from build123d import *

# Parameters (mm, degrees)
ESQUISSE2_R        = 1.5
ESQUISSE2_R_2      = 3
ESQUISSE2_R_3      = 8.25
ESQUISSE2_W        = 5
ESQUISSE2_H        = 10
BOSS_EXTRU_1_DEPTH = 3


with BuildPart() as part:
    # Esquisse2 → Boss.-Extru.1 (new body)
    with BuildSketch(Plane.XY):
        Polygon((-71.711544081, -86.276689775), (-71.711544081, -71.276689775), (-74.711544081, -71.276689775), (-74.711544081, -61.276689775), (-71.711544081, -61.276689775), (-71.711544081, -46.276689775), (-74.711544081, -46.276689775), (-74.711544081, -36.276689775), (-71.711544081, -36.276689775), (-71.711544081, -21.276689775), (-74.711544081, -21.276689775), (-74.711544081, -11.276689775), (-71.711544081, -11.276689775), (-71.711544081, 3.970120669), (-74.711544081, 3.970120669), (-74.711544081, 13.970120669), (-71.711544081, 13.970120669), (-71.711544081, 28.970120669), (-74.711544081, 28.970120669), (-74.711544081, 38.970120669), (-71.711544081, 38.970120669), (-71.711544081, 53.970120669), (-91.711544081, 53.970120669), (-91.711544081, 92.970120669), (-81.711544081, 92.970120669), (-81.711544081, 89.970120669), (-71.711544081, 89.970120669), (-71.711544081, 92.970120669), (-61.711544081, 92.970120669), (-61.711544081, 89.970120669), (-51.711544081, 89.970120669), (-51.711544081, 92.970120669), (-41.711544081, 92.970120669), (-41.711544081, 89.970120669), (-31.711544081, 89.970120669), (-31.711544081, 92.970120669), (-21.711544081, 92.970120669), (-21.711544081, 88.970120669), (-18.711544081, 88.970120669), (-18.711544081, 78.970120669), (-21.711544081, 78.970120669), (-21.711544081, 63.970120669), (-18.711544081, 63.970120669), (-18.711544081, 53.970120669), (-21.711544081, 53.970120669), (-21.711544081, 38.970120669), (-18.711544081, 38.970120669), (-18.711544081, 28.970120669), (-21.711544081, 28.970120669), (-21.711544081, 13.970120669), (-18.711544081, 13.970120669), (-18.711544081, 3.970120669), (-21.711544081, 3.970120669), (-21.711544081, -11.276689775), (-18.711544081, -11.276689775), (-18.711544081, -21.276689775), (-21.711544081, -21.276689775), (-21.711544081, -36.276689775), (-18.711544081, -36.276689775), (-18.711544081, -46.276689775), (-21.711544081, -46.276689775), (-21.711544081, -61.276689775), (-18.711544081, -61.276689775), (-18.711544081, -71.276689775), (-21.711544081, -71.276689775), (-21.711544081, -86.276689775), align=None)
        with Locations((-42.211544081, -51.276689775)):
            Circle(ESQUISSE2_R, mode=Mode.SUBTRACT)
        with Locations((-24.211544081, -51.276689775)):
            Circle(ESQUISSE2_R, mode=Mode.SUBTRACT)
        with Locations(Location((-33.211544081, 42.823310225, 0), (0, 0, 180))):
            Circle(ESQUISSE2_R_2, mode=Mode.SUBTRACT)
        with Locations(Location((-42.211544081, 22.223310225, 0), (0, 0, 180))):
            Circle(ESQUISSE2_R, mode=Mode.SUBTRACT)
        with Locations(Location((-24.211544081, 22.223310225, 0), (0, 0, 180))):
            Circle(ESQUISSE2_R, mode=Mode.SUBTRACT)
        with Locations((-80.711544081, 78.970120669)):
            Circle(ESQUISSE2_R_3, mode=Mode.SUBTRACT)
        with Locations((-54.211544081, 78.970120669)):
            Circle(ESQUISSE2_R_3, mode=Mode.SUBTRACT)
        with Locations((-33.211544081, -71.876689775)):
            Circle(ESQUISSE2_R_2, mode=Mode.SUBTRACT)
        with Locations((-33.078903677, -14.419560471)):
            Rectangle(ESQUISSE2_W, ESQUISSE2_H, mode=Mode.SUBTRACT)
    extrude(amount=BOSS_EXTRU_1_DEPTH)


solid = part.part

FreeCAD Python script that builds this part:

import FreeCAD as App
import Part
import Sketcher
from FreeCAD import Vector

doc = App.newDocument("Part")
body = doc.addObject("PartDesign::Body", "Body")

sketch1 = body.newObject("Sketcher::SketchObject", "Sketch")
sketch1.AttachmentSupport = (doc.getObject("XY_Plane"), [""])
sketch1.MapMode = "FlatFace"
sketch1.addGeometry([
    Part.LineSegment(Vector(-71.7, -71.3, 0), Vector(-71.7, -86.3, 0)),
    Part.LineSegment(Vector(-71.7, -86.3, 0), Vector(-21.7, -86.3, 0)),
    Part.LineSegment(Vector(-21.7, -86.3, 0), Vector(-21.7, -71.3, 0)),
    Part.LineSegment(Vector(-21.7, -71.3, 0), Vector(-18.7, -71.3, 0)),
    Part.LineSegment(Vector(-18.7, -71.3, 0), Vector(-18.7, -61.3, 0)),
    Part.LineSegment(Vector(-18.7, -61.3, 0), Vector(-21.7, -61.3, 0)),
    Part.LineSegment(Vector(-21.7, -61.3, 0), Vector(-21.7, -46.3, 0)),
    Part.LineSegment(Vector(-21.7, -46.3, 0), Vector(-18.7, -46.3, 0)),
    Part.LineSegment(Vector(-18.7, -46.3, 0), Vector(-18.7, -36.3, 0)),
    Part.LineSegment(Vector(-18.7, -36.3, 0), Vector(-21.7, -36.3, 0)),
    Part.LineSegment(Vector(-21.7, -36.3, 0), Vector(-21.7, -21.3, 0)),
    Part.LineSegment(Vector(-21.7, -21.3, 0), Vector(-18.7, -21.3, 0)),
    Part.LineSegment(Vector(-18.7, -21.3, 0), Vector(-18.7, -11.3, 0)),
    Part.LineSegment(Vector(-18.7, -11.3, 0), Vector(-21.7, -11.3, 0)),
    Part.LineSegment(Vector(-21.7, -11.3, 0), Vector(-21.7, 4, 0)),
    Part.LineSegment(Vector(-21.7, 4, 0), Vector(-18.7, 4, 0)),
    Part.LineSegment(Vector(-18.7, 4, 0), Vector(-18.7, 14, 0)),
    Part.LineSegment(Vector(-18.7, 14, 0), Vector(-21.7, 14, 0)),
    Part.LineSegment(Vector(-21.7, 14, 0), Vector(-21.7, 29, 0)),
    Part.LineSegment(Vector(-21.7, 29, 0), Vector(-18.7, 29, 0)),
    Part.LineSegment(Vector(-18.7, 29, 0), Vector(-18.7, 39, 0)),
    Part.LineSegment(Vector(-18.7, 39, 0), Vector(-21.7, 39, 0)),
    Part.LineSegment(Vector(-21.7, 39, 0), Vector(-21.7, 54, 0)),
    Part.LineSegment(Vector(-21.7, 54, 0), Vector(-18.7, 54, 0)),
    Part.LineSegment(Vector(-18.7, 54, 0), Vector(-18.7, 64, 0)),
    Part.LineSegment(Vector(-18.7, 64, 0), Vector(-21.7, 64, 0)),
    Part.LineSegment(Vector(-21.7, 64, 0), Vector(-21.7, 79, 0)),
    Part.LineSegment(Vector(-21.7, 79, 0), Vector(-18.7, 79, 0)),
    Part.LineSegment(Vector(-18.7, 79, 0), Vector(-18.7, 89, 0)),
    Part.LineSegment(Vector(-18.7, 89, 0), Vector(-21.7, 89, 0)),
    Part.LineSegment(Vector(-21.7, 89, 0), Vector(-21.7, 93, 0)),
    Part.LineSegment(Vector(-21.7, 93, 0), Vector(-31.7, 93, 0)),
    Part.LineSegment(Vector(-31.7, 93, 0), Vector(-31.7, 90, 0)),
    Part.LineSegment(Vector(-31.7, 90, 0), Vector(-41.7, 90, 0)),
    Part.LineSegment(Vector(-41.7, 90, 0), Vector(-41.7, 93, 0)),
    Part.LineSegment(Vector(-41.7, 93, 0), Vector(-51.7, 93, 0)),
    Part.LineSegment(Vector(-51.7, 93, 0), Vector(-51.7, 90, 0)),
    Part.LineSegment(Vector(-51.7, 90, 0), Vector(-61.7, 90, 0)),
    Part.LineSegment(Vector(-61.7, 90, 0), Vector(-61.7, 93, 0)),
    Part.LineSegment(Vector(-61.7, 93, 0), Vector(-71.7, 93, 0)),
    Part.LineSegment(Vector(-71.7, 93, 0), Vector(-71.7, 90, 0)),
    Part.LineSegment(Vector(-71.7, 90, 0), Vector(-81.7, 90, 0)),
    Part.LineSegment(Vector(-81.7, 90, 0), Vector(-81.7, 93, 0)),
    Part.LineSegment(Vector(-81.7, 93, 0), Vector(-91.7, 93, 0)),
    Part.LineSegment(Vector(-91.7, 93, 0), Vector(-91.7, 54, 0)),
    Part.LineSegment(Vector(-91.7, 54, 0), Vector(-71.7, 54, 0)),
    Part.LineSegment(Vector(-71.7, 54, 0), Vector(-71.7, 39, 0)),
    Part.LineSegment(Vector(-71.7, 39, 0), Vector(-74.7, 39, 0)),
    Part.LineSegment(Vector(-74.7, 39, 0), Vector(-74.7, 29, 0)),
    Part.LineSegment(Vector(-74.7, 29, 0), Vector(-71.7, 29, 0)),
    Part.LineSegment(Vector(-71.7, 29, 0), Vector(-71.7, 14, 0)),
    Part.LineSegment(Vector(-71.7, 14, 0), Vector(-74.7, 14, 0)),
    Part.LineSegment(Vector(-74.7, 14, 0), Vector(-74.7, 4, 0)),
    Part.LineSegment(Vector(-74.7, 4, 0), Vector(-71.7, 4, 0)),
    Part.LineSegment(Vector(-71.7, 4, 0), Vector(-71.7, -11.3, 0)),
    Part.LineSegment(Vector(-71.7, -11.3, 0), Vector(-74.7, -11.3, 0)),
    Part.LineSegment(Vector(-74.7, -11.3, 0), Vector(-74.7, -21.3, 0)),
    Part.LineSegment(Vector(-74.7, -21.3, 0), Vector(-71.7, -21.3, 0)),
    Part.LineSegment(Vector(-71.7, -21.3, 0), Vector(-71.7, -36.3, 0)),
    Part.LineSegment(Vector(-71.7, -36.3, 0), Vector(-74.7, -36.3, 0)),
    Part.LineSegment(Vector(-74.7, -36.3, 0), Vector(-74.7, -46.3, 0)),
    Part.LineSegment(Vector(-74.7, -46.3, 0), Vector(-71.7, -46.3, 0)),
    Part.LineSegment(Vector(-71.7, -46.3, 0), Vector(-71.7, -61.3, 0)),
    Part.LineSegment(Vector(-71.7, -61.3, 0), Vector(-74.7, -61.3, 0)),
    Part.LineSegment(Vector(-74.7, -61.3, 0), Vector(-74.7, -71.3, 0)),
    Part.LineSegment(Vector(-74.7, -71.3, 0), Vector(-71.7, -71.3, 0)),
    Part.Circle(Vector(-33.2, -71.9, 0), Vector(0, 0, 1), 3),
    Part.Circle(Vector(-24.2, -51.3, 0), Vector(0, 0, 1), 1.5),
    Part.Circle(Vector(-42.2, -51.3, 0), Vector(0, 0, 1), 1.5),
    Part.LineSegment(Vector(-35.6, -19.4, 0), Vector(-35.6, -9.4, 0)),
    Part.LineSegment(Vector(-35.6, -9.4, 0), Vector(-30.6, -9.4, 0)),
    Part.LineSegment(Vector(-30.6, -9.4, 0), Vector(-30.6, -19.4, 0)),
    Part.LineSegment(Vector(-30.6, -19.4, 0), Vector(-35.6, -19.4, 0)),
    Part.Circle(Vector(-24.2, 22.2, 0), Vector(0, 0, 1), 1.5),
    Part.Circle(Vector(-33.2, 42.8, 0), Vector(0, 0, 1), 3),
    Part.Circle(Vector(-42.2, 22.2, 0), Vector(0, 0, 1), 1.5),
    Part.Circle(Vector(-54.2, 79, 0), Vector(0, 0, 1), 8.2),
    Part.Circle(Vector(-80.7, 79, 0), Vector(0, 0, 1), 8.2),
], False)
sketch1.addConstraint([
    Sketcher.Constraint("Coincident", 0, 2, 1, 1),
    Sketcher.Constraint("Coincident", 1, 2, 2, 1),
    Sketcher.Constraint("Coincident", 2, 2, 3, 1),
    Sketcher.Constraint("Coincident", 3, 2, 4, 1),
    Sketcher.Constraint("Coincident", 4, 2, 5, 1),
    Sketcher.Constraint("Coincident", 5, 2, 6, 1),
    Sketcher.Constraint("Coincident", 6, 2, 7, 1),
    Sketcher.Constraint("Coincident", 7, 2, 8, 1),
    Sketcher.Constraint("Coincident", 8, 2, 9, 1),
    Sketcher.Constraint("Coincident", 9, 2, 10, 1),
    Sketcher.Constraint("Coincident", 10, 2, 11, 1),
    Sketcher.Constraint("Coincident", 11, 2, 12, 1),
    Sketcher.Constraint("Coincident", 12, 2, 13, 1),
    Sketcher.Constraint("Coincident", 13, 2, 14, 1),
    Sketcher.Constraint("Coincident", 14, 2, 15, 1),
    Sketcher.Constraint("Coincident", 15, 2, 16, 1),
    Sketcher.Constraint("Coincident", 16, 2, 17, 1),
    Sketcher.Constraint("Coincident", 17, 2, 18, 1),
    Sketcher.Constraint("Coincident", 18, 2, 19, 1),
    Sketcher.Constraint("Coincident", 19, 2, 20, 1),
    Sketcher.Constraint("Coincident", 20, 2, 21, 1),
    Sketcher.Constraint("Coincident", 21, 2, 22, 1),
    Sketcher.Constraint("Coincident", 22, 2, 23, 1),
    Sketcher.Constraint("Coincident", 23, 2, 24, 1),
    Sketcher.Constraint("Coincident", 24, 2, 25, 1),
    Sketcher.Constraint("Coincident", 25, 2, 26, 1),
    Sketcher.Constraint("Coincident", 26, 2, 27, 1),
    Sketcher.Constraint("Coincident", 27, 2, 28, 1),
    Sketcher.Constraint("Coincident", 28, 2, 29, 1),
    Sketcher.Constraint("Coincident", 29, 2, 30, 1),
    Sketcher.Constraint("Coincident", 30, 2, 31, 1),
    Sketcher.Constraint("Coincident", 31, 2, 32, 1),
    Sketcher.Constraint("Coincident", 32, 2, 33, 1),
    Sketcher.Constraint("Coincident", 33, 2, 34, 1),
    Sketcher.Constraint("Coincident", 34, 2, 35, 1),
    Sketcher.Constraint("Coincident", 35, 2, 36, 1),
    Sketcher.Constraint("Coincident", 36, 2, 37, 1),
    Sketcher.Constraint("Coincident", 37, 2, 38, 1),
    Sketcher.Constraint("Coincident", 38, 2, 39, 1),
    Sketcher.Constraint("Coincident", 39, 2, 40, 1),
    Sketcher.Constraint("Coincident", 40, 2, 41, 1),
    Sketcher.Constraint("Coincident", 41, 2, 42, 1),
    Sketcher.Constraint("Coincident", 42, 2, 43, 1),
    Sketcher.Constraint("Coincident", 43, 2, 44, 1),
    Sketcher.Constraint("Coincident", 44, 2, 45, 1),
    Sketcher.Constraint("Coincident", 45, 2, 46, 1),
    Sketcher.Constraint("Coincident", 46, 2, 47, 1),
    Sketcher.Constraint("Coincident", 47, 2, 48, 1),
    Sketcher.Constraint("Coincident", 48, 2, 49, 1),
    Sketcher.Constraint("Coincident", 49, 2, 50, 1),
    Sketcher.Constraint("Coincident", 50, 2, 51, 1),
    Sketcher.Constraint("Coincident", 51, 2, 52, 1),
    Sketcher.Constraint("Coincident", 52, 2, 53, 1),
    Sketcher.Constraint("Coincident", 53, 2, 54, 1),
    Sketcher.Constraint("Coincident", 54, 2, 55, 1),
    Sketcher.Constraint("Coincident", 55, 2, 56, 1),
    Sketcher.Constraint("Coincident", 56, 2, 57, 1),
    Sketcher.Constraint("Coincident", 57, 2, 58, 1),
    Sketcher.Constraint("Coincident", 58, 2, 59, 1),
    Sketcher.Constraint("Coincident", 59, 2, 60, 1),
    Sketcher.Constraint("Coincident", 60, 2, 61, 1),
    Sketcher.Constraint("Coincident", 61, 2, 62, 1),
    Sketcher.Constraint("Coincident", 62, 2, 63, 1),
    Sketcher.Constraint("Coincident", 63, 2, 64, 1),
    Sketcher.Constraint("Coincident", 64, 2, 65, 1),
    Sketcher.Constraint("Coincident", 65, 2, 0, 1),
    Sketcher.Constraint("Coincident", 69, 2, 70, 1),
    Sketcher.Constraint("Coincident", 70, 2, 71, 1),
    Sketcher.Constraint("Coincident", 71, 2, 72, 1),
    Sketcher.Constraint("Coincident", 72, 2, 69, 1),
    Sketcher.Constraint("Vertical", 0),
    Sketcher.Constraint("Horizontal", 1),
    Sketcher.Constraint("Vertical", 2),
    Sketcher.Constraint("Horizontal", 3),
    Sketcher.Constraint("Vertical", 4),
    Sketcher.Constraint("Horizontal", 5),
    Sketcher.Constraint("Vertical", 6),
    Sketcher.Constraint("Horizontal", 7),
    Sketcher.Constraint("Vertical", 8),
    Sketcher.Constraint("Horizontal", 9),
    Sketcher.Constraint("Vertical", 10),
    Sketcher.Constraint("Horizontal", 11),
    Sketcher.Constraint("Vertical", 12),
    Sketcher.Constraint("Horizontal", 13),
    Sketcher.Constraint("Vertical", 14),
    Sketcher.Constraint("Horizontal", 15),
    Sketcher.Constraint("Vertical", 16),
    Sketcher.Constraint("Horizontal", 17),
    Sketcher.Constraint("Vertical", 18),
    Sketcher.Constraint("Horizontal", 19),
    Sketcher.Constraint("Vertical", 20),
    Sketcher.Constraint("Horizontal", 21),
    Sketcher.Constraint("Vertical", 22),
    Sketcher.Constraint("Horizontal", 23),
    Sketcher.Constraint("Vertical", 24),
    Sketcher.Constraint("Horizontal", 25),
    Sketcher.Constraint("Vertical", 26),
    Sketcher.Constraint("Horizontal", 27),
    Sketcher.Constraint("Vertical", 28),
    Sketcher.Constraint("Horizontal", 29),
    Sketcher.Constraint("Vertical", 30),
    Sketcher.Constraint("Horizontal", 31),
    Sketcher.Constraint("Vertical", 32),
    Sketcher.Constraint("Horizontal", 33),
    Sketcher.Constraint("Vertical", 34),
    Sketcher.Constraint("Horizontal", 35),
    Sketcher.Constraint("Vertical", 36),
    Sketcher.Constraint("Horizontal", 37),
    Sketcher.Constraint("Vertical", 38),
    Sketcher.Constraint("Horizontal", 39),
    Sketcher.Constraint("Vertical", 40),
    Sketcher.Constraint("Horizontal", 41),
    Sketcher.Constraint("Vertical", 42),
    Sketcher.Constraint("Horizontal", 43),
    Sketcher.Constraint("Vertical", 44),
    Sketcher.Constraint("Horizontal", 45),
    Sketcher.Constraint("Vertical", 46),
    Sketcher.Constraint("Horizontal", 47),
    Sketcher.Constraint("Vertical", 48),
    Sketcher.Constraint("Horizontal", 49),
    Sketcher.Constraint("Vertical", 50),
    Sketcher.Constraint("Horizontal", 51),
    Sketcher.Constraint("Vertical", 52),
    Sketcher.Constraint("Horizontal", 53),
    Sketcher.Constraint("Vertical", 54),
    Sketcher.Constraint("Horizontal", 55),
    Sketcher.Constraint("Vertical", 56),
    Sketcher.Constraint("Horizontal", 57),
    Sketcher.Constraint("Vertical", 58),
    Sketcher.Constraint("Horizontal", 59),
    Sketcher.Constraint("Vertical", 60),
    Sketcher.Constraint("Horizontal", 61),
    Sketcher.Constraint("Vertical", 62),
    Sketcher.Constraint("Horizontal", 63),
    Sketcher.Constraint("Vertical", 64),
    Sketcher.Constraint("Horizontal", 65),
    Sketcher.Constraint("Vertical", 69),
    Sketcher.Constraint("Horizontal", 70),
    Sketcher.Constraint("Vertical", 71),
    Sketcher.Constraint("Horizontal", 72),
    Sketcher.Constraint("Equal", 67, 68),
    Sketcher.Constraint("Equal", 68, 73),
    Sketcher.Constraint("Equal", 66, 74),
    Sketcher.Constraint("Equal", 73, 75),
    Sketcher.Constraint("Equal", 76, 77),
    Sketcher.Constraint("Horizontal", 67, 3, 68, 3),
    Sketcher.Constraint("Horizontal", 73, 3, 75, 3),
    Sketcher.Constraint("Horizontal", 76, 3, 77, 3),
    Sketcher.Constraint("Horizontal", 77, 3, 26, 2),
    Sketcher.Constraint("Horizontal", 31, 2, 34, 2),
    Sketcher.Constraint("Horizontal", 33, 2, 36, 2),
    Sketcher.Constraint("Horizontal", 35, 2, 38, 2),
    Sketcher.Constraint("Horizontal", 37, 2, 40, 2),
    Sketcher.Constraint("Horizontal", 39, 2, 42, 2),
    Sketcher.Constraint("Horizontal", 23, 2, 44, 2),
    Sketcher.Constraint("Horizontal", 21, 2, 46, 2),
    Sketcher.Constraint("Horizontal", 19, 2, 48, 2),
    Sketcher.Constraint("Horizontal", 17, 2, 50, 2),
    Sketcher.Constraint("Horizontal", 15, 2, 52, 2),
    Sketcher.Constraint("Horizontal", 13, 2, 54, 2),
    Sketcher.Constraint("Horizontal", 11, 2, 56, 2),
    Sketcher.Constraint("Horizontal", 9, 2, 58, 2),
    Sketcher.Constraint("Horizontal", 7, 2, 60, 2),
    Sketcher.Constraint("Horizontal", 5, 2, 62, 2),
    Sketcher.Constraint("Horizontal", 3, 2, 64, 2),
    Sketcher.Constraint("Vertical", 67, 3, 73, 3),
    Sketcher.Constraint("Vertical", 66, 3, 74, 3),
    Sketcher.Constraint("Vertical", 68, 3, 75, 3),
    Sketcher.Constraint("Vertical", 2, 2, 5, 2),
    Sketcher.Constraint("Vertical", 4, 2, 7, 2),
    Sketcher.Constraint("Vertical", 6, 2, 9, 2),
    Sketcher.Constraint("Vertical", 8, 2, 11, 2),
    Sketcher.Constraint("Vertical", 10, 2, 13, 2),
    Sketcher.Constraint("Vertical", 12, 2, 15, 2),
    Sketcher.Constraint("Vertical", 14, 2, 17, 2),
    Sketcher.Constraint("Vertical", 16, 2, 19, 2),
    Sketcher.Constraint("Vertical", 18, 2, 21, 2),
    Sketcher.Constraint("Vertical", 20, 2, 23, 2),
    Sketcher.Constraint("Vertical", 22, 2, 25, 2),
    Sketcher.Constraint("Vertical", 24, 2, 27, 2),
    Sketcher.Constraint("Vertical", 26, 2, 29, 2),
    Sketcher.Constraint("Vertical", 0, 2, 39, 2),
    Sketcher.Constraint("Vertical", 40, 2, 45, 2),
    Sketcher.Constraint("Vertical", 46, 2, 49, 2),
    Sketcher.Constraint("Vertical", 48, 2, 51, 2),
    Sketcher.Constraint("Vertical", 50, 2, 53, 2),
    Sketcher.Constraint("Vertical", 52, 2, 55, 2),
    Sketcher.Constraint("Vertical", 54, 2, 57, 2),
    Sketcher.Constraint("Vertical", 56, 2, 59, 2),
    Sketcher.Constraint("Vertical", 58, 2, 61, 2),
    Sketcher.Constraint("Vertical", 60, 2, 63, 2),
    Sketcher.Constraint("Equal", 31, 33),
    Sketcher.Constraint("Equal", 33, 35),
    Sketcher.Constraint("Equal", 35, 37),
    Sketcher.Constraint("Equal", 37, 39),
    Sketcher.Constraint("Equal", 39, 41),
    Sketcher.Constraint("Equal", 41, 43),
    Sketcher.Constraint("Equal", 29, 47),
    Sketcher.Constraint("Equal", 43, 4),
    Sketcher.Constraint("Equal", 2, 6),
    Sketcher.Constraint("Equal", 4, 8),
    Sketcher.Constraint("Equal", 6, 10),
    Sketcher.Constraint("Equal", 8, 12),
    Sketcher.Constraint("Equal", 12, 16),
    Sketcher.Constraint("Equal", 10, 18),
    Sketcher.Constraint("Equal", 16, 20),
    Sketcher.Constraint("Equal", 18, 22),
    Sketcher.Constraint("Equal", 20, 24),
    Sketcher.Constraint("Equal", 22, 26),
    Sketcher.Constraint("Equal", 24, 28),
    Sketcher.Constraint("Equal", 65, 32),
    Sketcher.Constraint("Equal", 64, 69),
    Sketcher.Constraint("Diameter", 66, 6.0),
    Sketcher.Constraint("Diameter", 67, 3.0),
    Sketcher.Constraint("Diameter", 76, 16.5),
    Sketcher.Constraint("DistanceX", 1, 1, 1, 2, 50.0),
    Sketcher.Constraint("DistanceX", 3, 1, 3, 2, 3.0),
    Sketcher.Constraint("DistanceX", 70, 1, 70, 2, 5.0),
    Sketcher.Constraint("DistanceY", 0, 2, 0, 1, 15.0),
    Sketcher.Constraint("DistanceY", 30, 1, 30, 2, 4.0),
    Sketcher.Constraint("DistanceY", 14, 1, 14, 2, 15.24681),
    Sketcher.Constraint("DistanceY", 66, 3, -1, 1, 71.87669),
    Sketcher.Constraint("DistanceY", 67, 3, -1, 1, 51.27669),
    Sketcher.Constraint("DistanceY", -1, 1, 73, 3, 22.22331),
    Sketcher.Constraint("DistanceY", -1, 1, 74, 3, 42.82331),
    Sketcher.Constraint("DistanceY", -1, 1, 76, 3, 78.970121),
    Sketcher.Constraint("DistanceY", 69, 2, -1, 1, 9.41956),
    Sketcher.Constraint("DistanceX", 66, 3, -1, 1, 33.211544),
    Sketcher.Constraint("DistanceX", 67, 3, -1, 1, 24.211544),
    Sketcher.Constraint("DistanceX", 68, 3, -1, 1, 42.211544),
    Sketcher.Constraint("DistanceX", 76, 3, -1, 1, 54.211544),
    Sketcher.Constraint("DistanceX", 77, 3, -1, 1, 80.711544),
    Sketcher.Constraint("DistanceX", 0, 2, -1, 1, 71.711544),
    Sketcher.Constraint("DistanceX", 69, 2, -1, 1, 35.578904),
])
pad1 = body.newObject("PartDesign::Pad", "Pad")
pad1.Profile = sketch1
pad1.Length = 3

doc.recompute()
